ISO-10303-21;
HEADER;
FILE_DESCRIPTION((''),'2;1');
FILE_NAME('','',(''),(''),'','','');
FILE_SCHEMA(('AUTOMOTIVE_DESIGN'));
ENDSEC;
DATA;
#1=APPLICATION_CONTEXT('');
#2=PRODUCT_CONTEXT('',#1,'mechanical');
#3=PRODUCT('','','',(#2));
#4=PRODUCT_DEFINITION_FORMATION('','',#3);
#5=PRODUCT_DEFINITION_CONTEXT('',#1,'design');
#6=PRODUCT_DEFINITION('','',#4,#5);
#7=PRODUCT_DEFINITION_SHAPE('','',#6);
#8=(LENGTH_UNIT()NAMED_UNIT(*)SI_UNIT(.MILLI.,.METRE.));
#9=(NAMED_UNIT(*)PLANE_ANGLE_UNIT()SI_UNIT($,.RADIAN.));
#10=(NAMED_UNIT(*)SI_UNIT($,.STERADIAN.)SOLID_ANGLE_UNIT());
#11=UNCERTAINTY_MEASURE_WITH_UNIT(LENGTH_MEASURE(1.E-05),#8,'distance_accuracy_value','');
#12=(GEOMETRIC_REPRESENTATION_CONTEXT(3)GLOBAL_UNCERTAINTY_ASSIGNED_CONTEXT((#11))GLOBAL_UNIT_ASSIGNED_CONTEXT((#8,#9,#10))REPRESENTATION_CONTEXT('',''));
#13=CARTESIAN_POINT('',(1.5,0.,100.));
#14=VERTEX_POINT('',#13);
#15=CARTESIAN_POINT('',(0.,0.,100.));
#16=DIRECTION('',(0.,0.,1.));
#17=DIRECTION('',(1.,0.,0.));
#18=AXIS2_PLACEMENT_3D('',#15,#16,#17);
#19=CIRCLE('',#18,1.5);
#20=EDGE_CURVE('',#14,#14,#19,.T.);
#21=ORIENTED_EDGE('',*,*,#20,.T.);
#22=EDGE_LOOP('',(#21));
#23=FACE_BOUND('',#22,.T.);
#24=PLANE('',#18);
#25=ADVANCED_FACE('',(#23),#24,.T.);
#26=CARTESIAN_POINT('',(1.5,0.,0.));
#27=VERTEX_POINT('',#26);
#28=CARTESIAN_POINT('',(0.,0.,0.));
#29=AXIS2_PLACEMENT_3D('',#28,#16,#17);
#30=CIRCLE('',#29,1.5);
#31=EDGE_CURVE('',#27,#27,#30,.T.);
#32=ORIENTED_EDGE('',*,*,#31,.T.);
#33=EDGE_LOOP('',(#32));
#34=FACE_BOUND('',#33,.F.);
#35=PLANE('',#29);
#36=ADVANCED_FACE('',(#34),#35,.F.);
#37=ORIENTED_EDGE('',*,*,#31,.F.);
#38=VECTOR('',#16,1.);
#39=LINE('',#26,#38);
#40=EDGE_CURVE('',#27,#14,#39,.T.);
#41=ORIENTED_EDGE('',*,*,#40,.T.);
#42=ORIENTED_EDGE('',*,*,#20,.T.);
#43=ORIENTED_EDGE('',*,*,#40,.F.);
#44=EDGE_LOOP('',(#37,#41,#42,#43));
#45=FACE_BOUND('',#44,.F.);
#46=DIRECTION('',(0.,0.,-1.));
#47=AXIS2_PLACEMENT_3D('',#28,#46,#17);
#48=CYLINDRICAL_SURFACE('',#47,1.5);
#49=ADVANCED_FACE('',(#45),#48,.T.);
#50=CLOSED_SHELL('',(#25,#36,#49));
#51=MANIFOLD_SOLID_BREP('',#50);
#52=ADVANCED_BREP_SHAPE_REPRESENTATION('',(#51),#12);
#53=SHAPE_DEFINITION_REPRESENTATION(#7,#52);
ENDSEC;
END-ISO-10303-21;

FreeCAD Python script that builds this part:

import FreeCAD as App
import Part
import Sketcher
Q = App.Units.Quantity

doc = App.newDocument("Part")
body = doc.addObject("PartDesign::Body", "Body")

# Sketch on XY plane
sketch1 = doc.addObject("Sketcher::SketchObject", "Sketch")
body.addObject(sketch1)
sketch1.AttachmentSupport = (doc.XY_Plane, [""])
sketch1.MapMode = "FlatFace"
sketch1.addGeometry(Part.Circle(App.Vector(0, 0, 0), App.Vector(0, 0, 1), 1.5), False)
sketch1.addConstraint(Sketcher.Constraint("Coincident", 0, 3, -1, 1))
sketch1.addConstraint(Sketcher.Constraint("Diameter", 0, Q("3 mm")))
pad1 = doc.addObject("PartDesign::Pad", "Pad")
body.addObject(pad1)
pad1.Profile = sketch1
pad1.Length = 100

doc.recompute()
